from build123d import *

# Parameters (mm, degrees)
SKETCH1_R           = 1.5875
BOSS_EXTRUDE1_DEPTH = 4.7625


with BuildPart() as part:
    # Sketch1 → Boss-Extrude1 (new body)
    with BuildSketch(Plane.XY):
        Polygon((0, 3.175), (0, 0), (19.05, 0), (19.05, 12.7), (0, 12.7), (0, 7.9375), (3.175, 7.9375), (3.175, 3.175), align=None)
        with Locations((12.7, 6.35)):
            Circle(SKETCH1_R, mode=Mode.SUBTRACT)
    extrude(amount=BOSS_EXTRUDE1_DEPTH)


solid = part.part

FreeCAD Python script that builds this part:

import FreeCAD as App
import Part
import Sketcher

V = App.Vector
Q = App.Units.Quantity

doc = App.newDocument("Part")
params = doc.addObject("Spreadsheet::Sheet", "Params")
for row, (alias, value) in enumerate([
    ("sketch1_diameter", "0.125 in"),
    ("sketch1_height", "0.5 in"),
    ("sketch1_width", "0.75 in"),
    ("sketch1_width2", "0.125 in"),
    ("pad1_length", "0.1875 in"),
], start=1):
    params.set(f"A{row}", alias)
    params.set(f"B{row}", "=" + value)
    params.setAlias(f"B{row}", alias)

body = doc.addObject("PartDesign::Body", "Body")

sketch1 = body.newObject("Sketcher::SketchObject", "Sketch")
sketch1.AttachmentSupport = (doc.getObject("XY_Plane"), [""])
sketch1.MapMode = "FlatFace"
sketch1.addGeometry(Part.LineSegment(V(0, 3.175, 0), V(0, 0, 0)), False)
sketch1.addGeometry(Part.LineSegment(V(0, 0, 0), V(19.05, 0, 0)), False)
sketch1.addGeometry(Part.LineSegment(V(19.05, 0, 0), V(19.05, 12.7, 0)), False)
sketch1.addGeometry(Part.LineSegment(V(19.05, 12.7, 0), V(0, 12.7, 0)), False)
sketch1.addGeometry(Part.LineSegment(V(0, 12.7, 0), V(0, 7.9375, 0)), False)
sketch1.addGeometry(Part.LineSegment(V(0, 7.9375, 0), V(3.175, 7.9375, 0)), False)
sketch1.addGeometry(Part.LineSegment(V(3.175, 7.9375, 0), V(3.175, 3.175, 0)), False)
sketch1.addGeometry(Part.LineSegment(V(3.175, 3.175, 0), V(0, 3.175, 0)), False)
sketch1.addGeometry(Part.Circle(V(12.7, 6.35, 0), V(0, 0, 1), 1.5875), False)
sketch1.addConstraint(Sketcher.Constraint("Coincident", 0, 2, 1, 1))
sketch1.addConstraint(Sketcher.Constraint("Coincident", 1, 2, 2, 1))
sketch1.addConstraint(Sketcher.Constraint("Coincident", 2, 2, 3, 1))
sketch1.addConstraint(Sketcher.Constraint("Coincident", 3, 2, 4, 1))
sketch1.addConstraint(Sketcher.Constraint("Coincident", 4, 2, 5, 1))
sketch1.addConstraint(Sketcher.Constraint("Coincident", 5, 2, 6, 1))
sketch1.addConstraint(Sketcher.Constraint("Coincident", 6, 2, 7, 1))
sketch1.addConstraint(Sketcher.Constraint("Coincident", 7, 2, 0, 1))
sketch1.addConstraint(Sketcher.Constraint("Vertical", 0))
sketch1.addConstraint(Sketcher.Constraint("Horizontal", 1))
sketch1.addConstraint(Sketcher.Constraint("Vertical", 2))
sketch1.addConstraint(Sketcher.Constraint("Horizontal", 3))
sketch1.addConstraint(Sketcher.Constraint("Vertical", 4))
sketch1.addConstraint(Sketcher.Constraint("Horizontal", 5))
sketch1.addConstraint(Sketcher.Constraint("Vertical", 6))
sketch1.addConstraint(Sketcher.Constraint("Horizontal", 7))
sketch1.addConstraint(Sketcher.Constraint("Coincident", 0, 2, -1, 1))
sketch1.addConstraint(Sketcher.Constraint("PointOnObject", 3, 2, -2))
sketch1.addConstraint(Sketcher.Constraint("Equal", 7, 0))
sketch1.addConstraint(Sketcher.Constraint("Equal", 4, 6))
sketch1.addConstraint(Sketcher.Constraint("Diameter", 8, Q("0.125 in")))
sketch1.addConstraint(Sketcher.Constraint("DistanceY", 2, 1, 2, 2, Q("0.5 in")))
sketch1.addConstraint(Sketcher.Constraint("DistanceX", 1, 1, 1, 2, Q("0.75 in")))
sketch1.addConstraint(Sketcher.Constraint("DistanceX", -1, 1, 8, 3, Q("0.5 in")))
sketch1.addConstraint(Sketcher.Constraint("DistanceX", 5, 1, 5, 2, Q("0.125 in")))
sketch1.addConstraint(Sketcher.Constraint("DistanceY", -1, 1, 8, 3, Q("0.25 in")))
sketch1.setExpression("Constraints[20]", "Params.sketch1_diameter")
sketch1.setExpression("Constraints[21]", "Params.sketch1_height")
sketch1.setExpression("Constraints[22]", "Params.sketch1_width")
sketch1.setExpression("Constraints[24]", "Params.sketch1_width2")
pad1 = body.newObject("PartDesign::Pad", "Pad")
pad1.Profile = sketch1
pad1.setExpression("Length", "Params.pad1_length")

doc.recompute()
